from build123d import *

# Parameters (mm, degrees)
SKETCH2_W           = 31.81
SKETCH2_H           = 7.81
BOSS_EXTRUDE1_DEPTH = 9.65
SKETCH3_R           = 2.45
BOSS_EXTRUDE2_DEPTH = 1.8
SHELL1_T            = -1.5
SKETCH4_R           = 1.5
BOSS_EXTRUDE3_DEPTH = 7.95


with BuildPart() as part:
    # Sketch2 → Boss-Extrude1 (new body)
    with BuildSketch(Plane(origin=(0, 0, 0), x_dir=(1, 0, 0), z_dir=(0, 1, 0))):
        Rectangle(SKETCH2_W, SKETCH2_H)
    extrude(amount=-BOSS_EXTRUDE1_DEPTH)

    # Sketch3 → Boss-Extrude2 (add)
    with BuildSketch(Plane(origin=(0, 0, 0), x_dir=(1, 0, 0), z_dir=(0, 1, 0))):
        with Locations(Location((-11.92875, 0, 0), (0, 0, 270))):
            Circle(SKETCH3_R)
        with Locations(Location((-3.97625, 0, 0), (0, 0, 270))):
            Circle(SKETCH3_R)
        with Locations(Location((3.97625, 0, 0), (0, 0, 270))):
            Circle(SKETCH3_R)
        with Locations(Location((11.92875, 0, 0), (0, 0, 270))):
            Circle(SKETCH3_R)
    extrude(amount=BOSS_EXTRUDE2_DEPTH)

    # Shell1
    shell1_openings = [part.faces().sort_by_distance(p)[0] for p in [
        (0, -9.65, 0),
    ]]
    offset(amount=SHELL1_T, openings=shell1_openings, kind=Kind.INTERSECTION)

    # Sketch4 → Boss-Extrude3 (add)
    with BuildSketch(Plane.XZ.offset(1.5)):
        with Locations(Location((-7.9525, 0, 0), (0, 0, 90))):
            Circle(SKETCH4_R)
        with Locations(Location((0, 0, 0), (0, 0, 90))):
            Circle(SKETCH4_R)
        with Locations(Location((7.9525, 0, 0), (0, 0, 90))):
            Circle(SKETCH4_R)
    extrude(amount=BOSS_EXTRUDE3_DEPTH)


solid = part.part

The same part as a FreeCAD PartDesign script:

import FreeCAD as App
import Part
import Sketcher
from FreeCAD import Vector


def faces_at(feature, points):
    """Names of the faces that lie closest to the given points."""
    faces = feature.Shape.Faces
    near = lambda p: min(range(len(faces)), key=lambda i: faces[i].distToShape(Part.Vertex(*p))[0])
    return sorted({f"Face{near(p) + 1}" for p in points})


def add_polygon(sketch, points):
    """Adds a closed chain of lines whose ends are joined by coincident constraints."""
    first, n = sketch.GeometryCount, len(points)
    for a, b in zip(points, points[1:] + points[:1]):
        sketch.addGeometry(Part.LineSegment(App.Vector(*a, 0), App.Vector(*b, 0)), False)
    for i in range(n):
        sketch.addConstraint(Sketcher.Constraint("Coincident", first + i, 2, first + (i + 1) % n, 1))

doc = App.newDocument("Part")
params = doc.addObject("Spreadsheet::Sheet", "Params")
for row, (alias, value) in enumerate([
    ("sketch1_width", "31.81 mm"),
    ("sketch1_height", "7.81 mm"),
    ("pad1_length", "9.65 mm"),
    ("sketch2_diameter", "4.9 mm"),
    ("pad2_length", "1.8 mm"),
    ("thickness_wall", "1.5 mm"),
    ("sketch3_diameter", "3 mm"),
    ("pad3_length", "7.95 mm"),
], start=1):
    params.set(f"A{row}", alias)
    params.set(f"B{row}", "=" + value)
    params.setAlias(f"B{row}", alias)

body = doc.addObject("PartDesign::Body", "Body")

# Sketch on XZ plane
sketch1 = body.newObject("Sketcher::SketchObject", "Sketch")
sketch1.AttachmentSupport = (doc.getObject("XZ_Plane"), [""])
sketch1.MapMode = "FlatFace"
add_polygon(sketch1, [(-16, -4), (-16, 4), (16, 4), (16, -4)])  # lines 0-3
sketch1.addConstraint([
    Sketcher.Constraint("Vertical", 0),
    Sketcher.Constraint("Horizontal", 1),
    Sketcher.Constraint("Vertical", 2),
    Sketcher.Constraint("Horizontal", 3),
    Sketcher.Constraint("Symmetric", 0, 2, 2, 2, -1, 1),
    Sketcher.Constraint("DistanceX", 1, 1, 1, 2, 31.81),
    Sketcher.Constraint("DistanceY", 0, 1, 0, 2, 7.81),
])
sketch1.setExpression("Constraints[9]", "Params.sketch1_width")
sketch1.setExpression("Constraints[10]", "Params.sketch1_height")
pad1 = body.newObject("PartDesign::Pad", "Pad")
pad1.Profile = sketch1
pad1.setExpression("Length", "Params.pad1_length")

# Sketch on XZ plane
sketch2 = body.newObject("Sketcher::SketchObject", "Sketch001")
sketch2.AttachmentSupport = (doc.getObject("XZ_Plane"), [""])
sketch2.MapMode = "FlatFace"
sketch2.addGeometry([
    Part.Circle(Vector(-11.9, 0, 0), Vector(0, 0, 1), 2.5),
    Part.Circle(Vector(-4, 0, 0), Vector(0, 0, 1), 2.5),
    Part.Circle(Vector(4, 0, 0), Vector(0, 0, 1), 2.5),
    Part.Circle(Vector(11.9, 0, 0), Vector(0, 0, 1), 2.5),
], False)
sketch2.addConstraint([
    Sketcher.Constraint("Equal", 0, 1),
    Sketcher.Constraint("Equal", 1, 2),
    Sketcher.Constraint("Equal", 2, 3),
    Sketcher.Constraint("Symmetric", 1, 3, 2, 3, -1, 1),
    Sketcher.Constraint("Symmetric", 0, 3, 3, 3, -1, 1),
    Sketcher.Constraint("PointOnObject", 0, 3, -1),
    Sketcher.Constraint("PointOnObject", 1, 3, -1),
    Sketcher.Constraint("Diameter", 0, 4.9),
    Sketcher.Constraint("DistanceX", 0, 3, 2, 3, 15.905),
    Sketcher.Constraint("DistanceX", 0, 3, 1, 3, 7.9525),
])
sketch2.setExpression("Constraints[7]", "Params.sketch2_diameter")
pad2 = body.newObject("PartDesign::Pad", "Pad001")
pad2.Profile = sketch2
pad2.setExpression("Length", "Params.pad2_length")
pad2.Reversed = True
doc.recompute()

thickness = body.newObject("PartDesign::Thickness", "Thickness")
thickness.Base = (pad2, faces_at(pad2, [(0, -9.65, 0)]))
thickness.setExpression("Value", "Params.thickness_wall")
thickness.Reversed = True
thickness.Join = "Intersection"

# Sketch on XZ plane
sketch3 = body.newObject("Sketcher::SketchObject", "Sketch002")
sketch3.AttachmentSupport = (doc.getObject("XZ_Plane"), [""])
sketch3.MapMode = "FlatFace"
sketch3.AttachmentOffset = App.Placement(Vector(0, 0, 1.5), App.Rotation())
sketch3.addGeometry([
    Part.Circle(Vector(-8, 0, 0), Vector(0, 0, 1), 1.5),
    Part.Circle(Vector(0, 0, 0), Vector(0, 0, 1), 1.5),
    Part.Circle(Vector(8, 0, 0), Vector(0, 0, 1), 1.5),
], False)
sketch3.addConstraint([
    Sketcher.Constraint("Coincident", 1, 3, -1, 1),
    Sketcher.Constraint("Equal", 0, 1),
    Sketcher.Constraint("Equal", 1, 2),
    Sketcher.Constraint("Symmetric", 0, 3, 2, 3, -1, 1),
    Sketcher.Constraint("PointOnObject", 0, 3, -1),
    Sketcher.Constraint("Diameter", 0, 3.0),
    Sketcher.Constraint("DistanceX", 0, 3, 2, 3, 15.905),
])
sketch3.setExpression("Constraints[5]", "Params.sketch3_diameter")
pad3 = body.newObject("PartDesign::Pad", "Pad002")
pad3.Profile = sketch3
pad3.setExpression("Length", "Params.pad3_length")

doc.recompute()
